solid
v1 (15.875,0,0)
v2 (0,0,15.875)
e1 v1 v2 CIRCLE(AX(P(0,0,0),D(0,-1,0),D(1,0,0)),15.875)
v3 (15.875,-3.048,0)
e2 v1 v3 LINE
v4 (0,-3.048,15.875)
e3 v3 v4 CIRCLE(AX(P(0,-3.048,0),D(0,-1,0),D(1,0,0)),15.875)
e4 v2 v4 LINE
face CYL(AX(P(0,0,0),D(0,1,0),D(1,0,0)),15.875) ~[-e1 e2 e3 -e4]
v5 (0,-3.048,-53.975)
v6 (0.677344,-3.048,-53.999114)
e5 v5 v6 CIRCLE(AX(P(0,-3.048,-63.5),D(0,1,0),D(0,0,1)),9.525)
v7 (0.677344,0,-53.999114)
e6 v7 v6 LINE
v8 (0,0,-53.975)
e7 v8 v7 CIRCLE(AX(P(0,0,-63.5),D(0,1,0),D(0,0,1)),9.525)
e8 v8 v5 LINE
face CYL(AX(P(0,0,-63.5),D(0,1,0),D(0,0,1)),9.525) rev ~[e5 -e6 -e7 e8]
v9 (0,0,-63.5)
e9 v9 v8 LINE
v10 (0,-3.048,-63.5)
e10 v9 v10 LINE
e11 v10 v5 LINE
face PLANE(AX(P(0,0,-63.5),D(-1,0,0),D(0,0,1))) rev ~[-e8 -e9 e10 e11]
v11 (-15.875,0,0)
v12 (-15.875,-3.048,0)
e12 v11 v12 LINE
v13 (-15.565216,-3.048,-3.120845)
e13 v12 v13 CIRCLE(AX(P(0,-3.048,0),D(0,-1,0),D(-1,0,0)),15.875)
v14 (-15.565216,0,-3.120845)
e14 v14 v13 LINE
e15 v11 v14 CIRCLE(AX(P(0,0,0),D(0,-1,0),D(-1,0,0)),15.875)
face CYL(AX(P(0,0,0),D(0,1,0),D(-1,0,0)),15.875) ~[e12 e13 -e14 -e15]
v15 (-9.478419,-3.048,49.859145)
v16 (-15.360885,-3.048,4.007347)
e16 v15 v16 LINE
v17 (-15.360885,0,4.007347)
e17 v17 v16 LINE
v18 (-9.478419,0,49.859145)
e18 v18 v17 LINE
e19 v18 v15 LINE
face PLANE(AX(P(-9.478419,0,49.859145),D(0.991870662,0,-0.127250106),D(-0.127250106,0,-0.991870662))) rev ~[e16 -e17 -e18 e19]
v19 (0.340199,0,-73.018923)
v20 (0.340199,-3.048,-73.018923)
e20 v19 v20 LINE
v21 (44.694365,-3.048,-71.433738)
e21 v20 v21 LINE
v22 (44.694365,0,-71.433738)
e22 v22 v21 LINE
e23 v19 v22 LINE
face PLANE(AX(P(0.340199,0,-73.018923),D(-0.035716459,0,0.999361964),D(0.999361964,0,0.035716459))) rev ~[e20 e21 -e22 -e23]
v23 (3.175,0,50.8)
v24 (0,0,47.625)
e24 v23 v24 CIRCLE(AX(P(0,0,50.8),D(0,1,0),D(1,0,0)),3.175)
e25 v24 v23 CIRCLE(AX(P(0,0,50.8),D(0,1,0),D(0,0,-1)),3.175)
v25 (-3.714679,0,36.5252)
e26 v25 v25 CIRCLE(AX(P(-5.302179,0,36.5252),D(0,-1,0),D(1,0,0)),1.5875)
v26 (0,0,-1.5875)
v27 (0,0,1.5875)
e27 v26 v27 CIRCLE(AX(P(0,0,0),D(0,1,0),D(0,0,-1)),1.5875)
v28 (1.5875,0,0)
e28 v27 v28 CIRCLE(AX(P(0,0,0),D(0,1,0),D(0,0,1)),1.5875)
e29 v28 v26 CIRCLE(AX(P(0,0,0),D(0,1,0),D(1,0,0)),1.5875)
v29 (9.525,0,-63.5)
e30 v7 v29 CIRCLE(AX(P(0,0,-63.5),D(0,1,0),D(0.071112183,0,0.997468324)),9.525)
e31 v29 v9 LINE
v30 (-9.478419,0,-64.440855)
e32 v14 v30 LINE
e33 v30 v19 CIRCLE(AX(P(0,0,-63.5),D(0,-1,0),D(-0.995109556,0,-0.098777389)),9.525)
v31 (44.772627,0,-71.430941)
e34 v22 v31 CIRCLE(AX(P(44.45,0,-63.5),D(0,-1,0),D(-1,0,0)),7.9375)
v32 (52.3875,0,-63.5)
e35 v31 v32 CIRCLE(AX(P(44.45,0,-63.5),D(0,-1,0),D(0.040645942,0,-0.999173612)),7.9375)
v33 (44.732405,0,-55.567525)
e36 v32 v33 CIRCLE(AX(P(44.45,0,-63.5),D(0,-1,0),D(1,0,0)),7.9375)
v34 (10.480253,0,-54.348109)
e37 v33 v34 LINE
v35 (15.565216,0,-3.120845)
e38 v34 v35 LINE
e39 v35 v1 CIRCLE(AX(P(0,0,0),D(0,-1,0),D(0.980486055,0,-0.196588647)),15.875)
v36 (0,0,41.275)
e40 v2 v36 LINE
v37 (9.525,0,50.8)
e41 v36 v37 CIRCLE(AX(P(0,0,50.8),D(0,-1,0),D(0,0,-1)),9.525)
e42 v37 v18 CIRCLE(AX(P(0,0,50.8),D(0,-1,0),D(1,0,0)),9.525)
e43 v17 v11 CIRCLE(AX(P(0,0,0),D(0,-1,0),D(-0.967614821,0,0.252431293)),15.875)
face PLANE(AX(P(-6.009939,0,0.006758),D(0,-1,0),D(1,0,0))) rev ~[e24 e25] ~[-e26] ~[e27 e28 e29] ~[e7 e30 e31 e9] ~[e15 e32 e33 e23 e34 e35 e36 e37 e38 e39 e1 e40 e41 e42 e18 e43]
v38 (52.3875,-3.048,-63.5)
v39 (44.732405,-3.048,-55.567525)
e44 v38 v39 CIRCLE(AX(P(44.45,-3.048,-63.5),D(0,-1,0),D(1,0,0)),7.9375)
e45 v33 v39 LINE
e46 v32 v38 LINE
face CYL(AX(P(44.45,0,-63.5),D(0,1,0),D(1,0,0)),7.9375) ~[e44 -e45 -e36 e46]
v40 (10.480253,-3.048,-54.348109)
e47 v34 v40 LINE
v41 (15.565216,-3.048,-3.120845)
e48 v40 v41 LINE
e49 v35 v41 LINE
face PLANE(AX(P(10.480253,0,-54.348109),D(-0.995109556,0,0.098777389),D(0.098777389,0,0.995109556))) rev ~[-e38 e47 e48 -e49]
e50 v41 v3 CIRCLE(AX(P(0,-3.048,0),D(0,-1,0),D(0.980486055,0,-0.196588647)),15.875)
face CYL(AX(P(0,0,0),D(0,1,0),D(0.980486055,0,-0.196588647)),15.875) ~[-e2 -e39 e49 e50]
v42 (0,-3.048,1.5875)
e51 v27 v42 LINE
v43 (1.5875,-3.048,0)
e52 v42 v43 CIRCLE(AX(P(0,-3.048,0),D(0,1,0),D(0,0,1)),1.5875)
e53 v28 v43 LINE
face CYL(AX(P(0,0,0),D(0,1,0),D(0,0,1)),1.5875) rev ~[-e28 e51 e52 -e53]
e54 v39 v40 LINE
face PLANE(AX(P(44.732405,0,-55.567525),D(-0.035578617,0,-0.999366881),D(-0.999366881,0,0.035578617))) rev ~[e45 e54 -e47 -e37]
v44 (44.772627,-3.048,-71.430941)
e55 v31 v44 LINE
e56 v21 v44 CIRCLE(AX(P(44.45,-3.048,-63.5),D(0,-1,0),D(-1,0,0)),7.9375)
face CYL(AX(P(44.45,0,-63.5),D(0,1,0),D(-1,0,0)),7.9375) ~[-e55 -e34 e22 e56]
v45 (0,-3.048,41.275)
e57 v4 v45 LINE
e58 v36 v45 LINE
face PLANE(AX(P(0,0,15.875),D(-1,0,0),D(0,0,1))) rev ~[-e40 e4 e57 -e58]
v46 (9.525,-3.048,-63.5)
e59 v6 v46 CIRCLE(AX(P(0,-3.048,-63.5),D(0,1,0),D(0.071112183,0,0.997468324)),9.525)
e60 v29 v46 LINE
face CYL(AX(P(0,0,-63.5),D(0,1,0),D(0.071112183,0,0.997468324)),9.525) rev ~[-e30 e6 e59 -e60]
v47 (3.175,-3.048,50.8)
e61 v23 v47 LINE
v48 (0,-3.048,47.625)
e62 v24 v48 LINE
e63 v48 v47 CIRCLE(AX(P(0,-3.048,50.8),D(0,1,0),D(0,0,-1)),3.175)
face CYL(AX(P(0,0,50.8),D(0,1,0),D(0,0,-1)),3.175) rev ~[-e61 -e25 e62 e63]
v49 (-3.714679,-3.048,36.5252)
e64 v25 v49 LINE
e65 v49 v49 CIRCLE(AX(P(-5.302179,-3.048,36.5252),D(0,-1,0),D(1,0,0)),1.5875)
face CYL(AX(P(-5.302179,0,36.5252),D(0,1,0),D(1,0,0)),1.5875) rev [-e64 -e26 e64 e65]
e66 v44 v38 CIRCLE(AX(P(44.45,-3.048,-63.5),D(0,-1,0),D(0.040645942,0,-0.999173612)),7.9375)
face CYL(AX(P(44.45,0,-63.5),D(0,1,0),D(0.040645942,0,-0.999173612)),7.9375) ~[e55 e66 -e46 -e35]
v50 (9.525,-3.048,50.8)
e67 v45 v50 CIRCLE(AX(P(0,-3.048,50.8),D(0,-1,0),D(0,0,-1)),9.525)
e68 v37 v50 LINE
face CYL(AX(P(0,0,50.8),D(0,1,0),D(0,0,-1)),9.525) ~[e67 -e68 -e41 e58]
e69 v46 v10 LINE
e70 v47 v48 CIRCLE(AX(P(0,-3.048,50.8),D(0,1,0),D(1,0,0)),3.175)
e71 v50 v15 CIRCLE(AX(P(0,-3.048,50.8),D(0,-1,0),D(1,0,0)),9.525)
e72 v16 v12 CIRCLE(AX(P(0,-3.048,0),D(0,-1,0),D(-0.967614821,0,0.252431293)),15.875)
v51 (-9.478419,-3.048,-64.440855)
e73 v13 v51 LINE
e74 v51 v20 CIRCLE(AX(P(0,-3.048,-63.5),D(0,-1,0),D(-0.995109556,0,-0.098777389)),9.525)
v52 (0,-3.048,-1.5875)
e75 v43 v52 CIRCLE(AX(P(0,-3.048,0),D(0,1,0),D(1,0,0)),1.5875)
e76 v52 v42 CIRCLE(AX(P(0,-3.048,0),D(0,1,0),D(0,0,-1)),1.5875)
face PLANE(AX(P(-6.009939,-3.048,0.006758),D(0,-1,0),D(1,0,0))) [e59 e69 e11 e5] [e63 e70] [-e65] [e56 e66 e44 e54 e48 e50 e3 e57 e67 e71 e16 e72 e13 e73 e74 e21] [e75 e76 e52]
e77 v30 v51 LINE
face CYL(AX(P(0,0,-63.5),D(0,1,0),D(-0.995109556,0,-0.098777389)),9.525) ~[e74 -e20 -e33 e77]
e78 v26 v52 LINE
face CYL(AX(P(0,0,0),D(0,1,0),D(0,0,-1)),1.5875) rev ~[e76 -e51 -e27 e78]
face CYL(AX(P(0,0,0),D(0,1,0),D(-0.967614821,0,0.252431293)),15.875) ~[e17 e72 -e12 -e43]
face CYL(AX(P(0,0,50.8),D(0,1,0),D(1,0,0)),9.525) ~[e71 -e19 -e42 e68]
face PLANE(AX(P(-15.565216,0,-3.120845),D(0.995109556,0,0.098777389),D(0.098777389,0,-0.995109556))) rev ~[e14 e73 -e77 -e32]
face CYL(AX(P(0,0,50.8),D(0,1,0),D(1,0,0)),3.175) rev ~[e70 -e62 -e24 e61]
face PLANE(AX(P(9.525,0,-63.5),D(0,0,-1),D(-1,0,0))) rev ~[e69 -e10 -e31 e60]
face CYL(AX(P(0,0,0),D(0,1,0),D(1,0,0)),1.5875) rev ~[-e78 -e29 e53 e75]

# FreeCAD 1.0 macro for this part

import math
import FreeCAD as App
import Part
import Sketcher
Q = App.Units.Quantity

doc = App.newDocument("Part")
params = doc.addObject("Spreadsheet::Sheet", "Params")
for row, (alias, value) in enumerate([
    ("sketch1_height", "1 in"),
    ("sketch1_diameter", "0.125 in"),
    ("sketch1_radius", "0.375 in"),
    ("sketch1_radius2", "0.3125 in"),
    ("sketch1_radius3", "0.125 in"),
    ("pad1_length", "0.12 in"),
], start=1):
    params.set(f"A{row}", alias)
    params.set(f"B{row}", "=" + value)
    params.setAlias(f"B{row}", alias)

body = doc.addObject("PartDesign::Body", "Body")

# Sketch on XZ plane
sketch1 = body.newObject("Sketcher::SketchObject", "Sketch")
sketch1.AttachmentSupport = (doc.getObject("XZ_Plane"), [""])
sketch1.MapMode = "FlatFace"
sketch1.addGeometry([
    Part.LineSegment(App.Vector(-15.57, -3.12, 0), App.Vector(-9.48, -64.44, 0)),  # 0
    Part.ArcOfCircle(Part.Circle(App.Vector(0, -63.5, 0), App.Vector(0, 0, 1), 9.53), math.radians(-174), math.radians(-88)),  # 1
    Part.LineSegment(App.Vector(0.34, -73.02, 0), App.Vector(44.69, -71.43, 0)),  # 2
    Part.ArcOfCircle(Part.Circle(App.Vector(44.45, -63.5, 0), App.Vector(0, 0, 1), 7.94), math.radians(-88.24), math.radians(-87.67)),  # 3
    Part.ArcOfCircle(Part.Circle(App.Vector(44.45, -63.5, 0), App.Vector(0, 0, 1), 7.94), math.radians(-88), math.radians(0)),  # 4
    Part.ArcOfCircle(Part.Circle(App.Vector(44.45, -63.5, 0), App.Vector(0, 0, 1), 7.94), math.radians(0), math.radians(88)),  # 5
    Part.LineSegment(App.Vector(44.73, -55.57, 0), App.Vector(10.48, -54.35, 0)),  # 6
    Part.LineSegment(App.Vector(10.48, -54.35, 0), App.Vector(15.57, -3.12, 0)),  # 7
    Part.ArcOfCircle(Part.Circle(App.Vector(0, 0, 0), App.Vector(0, 0, 1), 15.87), math.radians(-11.34), math.radians(0)),  # 8
    Part.ArcOfCircle(Part.Circle(App.Vector(0, 0, 0), App.Vector(0, 0, 1), 15.88), math.radians(0), math.radians(90)),  # 9
    Part.LineSegment(App.Vector(0, 15.88, 0), App.Vector(0, 41.27, 0)),  # 10
    Part.ArcOfCircle(Part.Circle(App.Vector(0, 50.8, 0), App.Vector(0, 0, 1), 9.53), math.radians(-90), math.radians(0)),  # 11
    Part.ArcOfCircle(Part.Circle(App.Vector(0, 50.8, 0), App.Vector(0, 0, 1), 9.53), math.radians(0), math.radians(186)),  # 12
    Part.LineSegment(App.Vector(-9.48, 49.86, 0), App.Vector(-15.36, 4.01, 0)),  # 13
    Part.ArcOfCircle(Part.Circle(App.Vector(0, 0, 0), App.Vector(0, 0, 1), 15.87), math.radians(165.38), math.radians(180)),  # 14
    Part.ArcOfCircle(Part.Circle(App.Vector(0, 0, 0), App.Vector(0, 0, 1), 15.87), math.radians(180), math.radians(191.34)),  # 15
    Part.LineSegment(App.Vector(9.53, -63.5, 0), App.Vector(0, -63.5, 0)),  # 16
    Part.LineSegment(App.Vector(0, -63.5, 0), App.Vector(0, -53.98, 0)),  # 17
    Part.ArcOfCircle(Part.Circle(App.Vector(0, -63.5, 0), App.Vector(0, 0, 1), 9.53), math.radians(85.92), math.radians(90)),  # 18
    Part.ArcOfCircle(Part.Circle(App.Vector(0, -63.5, 0), App.Vector(0, 0, 1), 9.53), math.radians(0), math.radians(86)),  # 19
    Part.ArcOfCircle(Part.Circle(App.Vector(0, 0, 0), App.Vector(0, 0, 1), 1.59), math.radians(90), math.radians(270)),  # 20
    Part.ArcOfCircle(Part.Circle(App.Vector(0, 0, 0), App.Vector(0, 0, 1), 1.59), math.radians(0), math.radians(90)),  # 21
    Part.ArcOfCircle(Part.Circle(App.Vector(0, 0, 0), App.Vector(0, 0, 1), 1.59), math.radians(-90), math.radians(0)),  # 22
    Part.Circle(App.Vector(-5.3, 36.53, 0), App.Vector(0, 0, 1), 1.59),  # 23
    Part.ArcOfCircle(Part.Circle(App.Vector(0, 50.8, 0), App.Vector(0, 0, 1), 3.17), math.radians(0), math.radians(270)),  # 24
    Part.ArcOfCircle(Part.Circle(App.Vector(0, 50.8, 0), App.Vector(0, 0, 1), 3.17), math.radians(-90), math.radians(0)),  # 25
], False)
sketch1.addConstraint([
    Sketcher.Constraint("Tangent", 0, 2, 1, 1),
    Sketcher.Constraint("Tangent", 1, 2, 2, 1),
    Sketcher.Constraint("Coincident", 2, 2, 3, 1),
    Sketcher.Constraint("Tangent", 3, 2, 4, 1),
    Sketcher.Constraint("Tangent", 4, 2, 5, 1),
    Sketcher.Constraint("Tangent", 5, 2, 6, 1),
    Sketcher.Constraint("Coincident", 6, 2, 7, 1),
    Sketcher.Constraint("Coincident", 7, 2, 8, 1),
    Sketcher.Constraint("Tangent", 8, 2, 9, 1),
    Sketcher.Constraint("Coincident", 9, 2, 10, 1),
    Sketcher.Constraint("Coincident", 10, 2, 11, 1),
    Sketcher.Constraint("Tangent", 11, 2, 12, 1),
    Sketcher.Constraint("Coincident", 12, 2, 13, 1),
    Sketcher.Constraint("Coincident", 13, 2, 14, 1),
    Sketcher.Constraint("Tangent", 14, 2, 15, 1),
    Sketcher.Constraint("Coincident", 15, 2, 0, 1),
    Sketcher.Constraint("Coincident", 16, 2, 17, 1),
    Sketcher.Constraint("Coincident", 17, 2, 18, 2),
    Sketcher.Constraint("Tangent", 18, 1, 19, 2),
    Sketcher.Constraint("Coincident", 19, 1, 16, 1),
    Sketcher.Constraint("Tangent", 20, 1, 21, 2),
    Sketcher.Constraint("Tangent", 21, 1, 22, 2),
    Sketcher.Constraint("Tangent", 22, 1, 20, 2),
    Sketcher.Constraint("Tangent", 24, 1, 25, 2),
    Sketcher.Constraint("Coincident", 25, 1, 24, 2),
    Sketcher.Constraint("Vertical", 10),
    Sketcher.Constraint("Horizontal", 16),
    Sketcher.Constraint("Vertical", 17),
    Sketcher.Constraint("Coincident", 8, 3, -1, 1),
    Sketcher.Constraint("Coincident", 14, 3, -1, 1),
    Sketcher.Constraint("Coincident", 20, 3, -1, 1),
    Sketcher.Constraint("Coincident", 5, 3, 3, 3),
    Sketcher.Constraint("Coincident", 18, 3, 1, 3),
    Sketcher.Constraint("Coincident", 24, 3, 11, 3),
    Sketcher.Constraint("Coincident", 16, 2, 1, 3),
    Sketcher.Constraint("Equal", 8, 9),
    Sketcher.Constraint("Equal", 1, 11),
    Sketcher.Constraint("Equal", 11, 12),
    Sketcher.Constraint("Equal", 9, 14),
    Sketcher.Constraint("Equal", 14, 15),
    Sketcher.Constraint("Equal", 12, 18),
    Sketcher.Constraint("Equal", 18, 19),
    Sketcher.Constraint("Equal", 22, 23),
    Sketcher.Constraint("PointOnObject", 1, 3, -2),
    Sketcher.Constraint("PointOnObject", 11, 3, -2),
    Sketcher.Constraint("PointOnObject", 8, 2, -1),
    Sketcher.Constraint("PointOnObject", 9, 2, -2),
    Sketcher.Constraint("PointOnObject", 14, 2, -1),
    Sketcher.Constraint("PointOnObject", 20, 1, -2),
    Sketcher.Constraint("PointOnObject", 21, 1, -1),
    Sketcher.Constraint("PointOnObject", 22, 1, -2),
    Sketcher.Constraint("PointOnObject", 25, 1, -2),
    Sketcher.Constraint("Horizontal", 1, 3, 3, 3),
    Sketcher.Constraint("Horizontal", 19, 3, 4, 2),
    Sketcher.Constraint("Horizontal", 25, 3, 11, 2),
    Sketcher.Constraint("Horizontal", 7, 2, 15, 2),
    Sketcher.Constraint("Horizontal", 11, 2, 24, 1),
    Sketcher.Constraint("Vertical", 0, 2, 12, 2),
    Sketcher.Constraint("DistanceY", 10, 1, 10, 2, Q("1 in")),
    Sketcher.Constraint("Diameter", 23, Q("0.125 in")),
    Sketcher.Constraint("DistanceY", -1, 1, 11, 3, Q("2 in")),
    Sketcher.Constraint("Radius", 1, Q("0.375 in")),
    Sketcher.Constraint("Radius", 3, Q("0.3125 in")),
    Sketcher.Constraint("Radius", 24, Q("0.125 in")),
    Sketcher.Constraint("DistanceY", 1, 3, -1, 1, Q("2.5 in")),
    Sketcher.Constraint("DistanceX", -1, 1, 3, 3, Q("1.75 in")),
    Sketcher.Constraint("DistanceY", -1, 1, 23, 3, Q("1.438 in")),
    Sketcher.Constraint("Distance", 13, Q("46.227598 mm")),
    Sketcher.Constraint("Distance", 6, Q("34.273852 mm")),
    Sketcher.Constraint("Distance", 7, Q("51.47902 mm")),
    Sketcher.Constraint("DistanceX", 23, 3, -1, 1, Q("5.302179 mm")),
    Sketcher.Constraint("DistanceY", 3, 2, -1, 1, Q("71.430941 mm")),
    Sketcher.Constraint("DistanceY", 6, 2, -1, 1, Q("54.348109 mm")),
    Sketcher.Constraint("Distance", 2, Q("44.382483 mm")),
    Sketcher.Constraint("DistanceX", -1, 1, 18, 1, Q("0.677344 mm")),
])
sketch1.setExpression("Constraints[58]", "Params.sketch1_height")
sketch1.setExpression("Constraints[59]", "Params.sketch1_diameter")
sketch1.setExpression("Constraints[61]", "Params.sketch1_radius")
sketch1.setExpression("Constraints[62]", "Params.sketch1_radius2")
sketch1.setExpression("Constraints[63]", "Params.sketch1_radius3")
pad1 = body.newObject("PartDesign::Pad", "Pad")
pad1.Profile = sketch1
pad1.setExpression("Length", "Params.pad1_length")

doc.recompute()
